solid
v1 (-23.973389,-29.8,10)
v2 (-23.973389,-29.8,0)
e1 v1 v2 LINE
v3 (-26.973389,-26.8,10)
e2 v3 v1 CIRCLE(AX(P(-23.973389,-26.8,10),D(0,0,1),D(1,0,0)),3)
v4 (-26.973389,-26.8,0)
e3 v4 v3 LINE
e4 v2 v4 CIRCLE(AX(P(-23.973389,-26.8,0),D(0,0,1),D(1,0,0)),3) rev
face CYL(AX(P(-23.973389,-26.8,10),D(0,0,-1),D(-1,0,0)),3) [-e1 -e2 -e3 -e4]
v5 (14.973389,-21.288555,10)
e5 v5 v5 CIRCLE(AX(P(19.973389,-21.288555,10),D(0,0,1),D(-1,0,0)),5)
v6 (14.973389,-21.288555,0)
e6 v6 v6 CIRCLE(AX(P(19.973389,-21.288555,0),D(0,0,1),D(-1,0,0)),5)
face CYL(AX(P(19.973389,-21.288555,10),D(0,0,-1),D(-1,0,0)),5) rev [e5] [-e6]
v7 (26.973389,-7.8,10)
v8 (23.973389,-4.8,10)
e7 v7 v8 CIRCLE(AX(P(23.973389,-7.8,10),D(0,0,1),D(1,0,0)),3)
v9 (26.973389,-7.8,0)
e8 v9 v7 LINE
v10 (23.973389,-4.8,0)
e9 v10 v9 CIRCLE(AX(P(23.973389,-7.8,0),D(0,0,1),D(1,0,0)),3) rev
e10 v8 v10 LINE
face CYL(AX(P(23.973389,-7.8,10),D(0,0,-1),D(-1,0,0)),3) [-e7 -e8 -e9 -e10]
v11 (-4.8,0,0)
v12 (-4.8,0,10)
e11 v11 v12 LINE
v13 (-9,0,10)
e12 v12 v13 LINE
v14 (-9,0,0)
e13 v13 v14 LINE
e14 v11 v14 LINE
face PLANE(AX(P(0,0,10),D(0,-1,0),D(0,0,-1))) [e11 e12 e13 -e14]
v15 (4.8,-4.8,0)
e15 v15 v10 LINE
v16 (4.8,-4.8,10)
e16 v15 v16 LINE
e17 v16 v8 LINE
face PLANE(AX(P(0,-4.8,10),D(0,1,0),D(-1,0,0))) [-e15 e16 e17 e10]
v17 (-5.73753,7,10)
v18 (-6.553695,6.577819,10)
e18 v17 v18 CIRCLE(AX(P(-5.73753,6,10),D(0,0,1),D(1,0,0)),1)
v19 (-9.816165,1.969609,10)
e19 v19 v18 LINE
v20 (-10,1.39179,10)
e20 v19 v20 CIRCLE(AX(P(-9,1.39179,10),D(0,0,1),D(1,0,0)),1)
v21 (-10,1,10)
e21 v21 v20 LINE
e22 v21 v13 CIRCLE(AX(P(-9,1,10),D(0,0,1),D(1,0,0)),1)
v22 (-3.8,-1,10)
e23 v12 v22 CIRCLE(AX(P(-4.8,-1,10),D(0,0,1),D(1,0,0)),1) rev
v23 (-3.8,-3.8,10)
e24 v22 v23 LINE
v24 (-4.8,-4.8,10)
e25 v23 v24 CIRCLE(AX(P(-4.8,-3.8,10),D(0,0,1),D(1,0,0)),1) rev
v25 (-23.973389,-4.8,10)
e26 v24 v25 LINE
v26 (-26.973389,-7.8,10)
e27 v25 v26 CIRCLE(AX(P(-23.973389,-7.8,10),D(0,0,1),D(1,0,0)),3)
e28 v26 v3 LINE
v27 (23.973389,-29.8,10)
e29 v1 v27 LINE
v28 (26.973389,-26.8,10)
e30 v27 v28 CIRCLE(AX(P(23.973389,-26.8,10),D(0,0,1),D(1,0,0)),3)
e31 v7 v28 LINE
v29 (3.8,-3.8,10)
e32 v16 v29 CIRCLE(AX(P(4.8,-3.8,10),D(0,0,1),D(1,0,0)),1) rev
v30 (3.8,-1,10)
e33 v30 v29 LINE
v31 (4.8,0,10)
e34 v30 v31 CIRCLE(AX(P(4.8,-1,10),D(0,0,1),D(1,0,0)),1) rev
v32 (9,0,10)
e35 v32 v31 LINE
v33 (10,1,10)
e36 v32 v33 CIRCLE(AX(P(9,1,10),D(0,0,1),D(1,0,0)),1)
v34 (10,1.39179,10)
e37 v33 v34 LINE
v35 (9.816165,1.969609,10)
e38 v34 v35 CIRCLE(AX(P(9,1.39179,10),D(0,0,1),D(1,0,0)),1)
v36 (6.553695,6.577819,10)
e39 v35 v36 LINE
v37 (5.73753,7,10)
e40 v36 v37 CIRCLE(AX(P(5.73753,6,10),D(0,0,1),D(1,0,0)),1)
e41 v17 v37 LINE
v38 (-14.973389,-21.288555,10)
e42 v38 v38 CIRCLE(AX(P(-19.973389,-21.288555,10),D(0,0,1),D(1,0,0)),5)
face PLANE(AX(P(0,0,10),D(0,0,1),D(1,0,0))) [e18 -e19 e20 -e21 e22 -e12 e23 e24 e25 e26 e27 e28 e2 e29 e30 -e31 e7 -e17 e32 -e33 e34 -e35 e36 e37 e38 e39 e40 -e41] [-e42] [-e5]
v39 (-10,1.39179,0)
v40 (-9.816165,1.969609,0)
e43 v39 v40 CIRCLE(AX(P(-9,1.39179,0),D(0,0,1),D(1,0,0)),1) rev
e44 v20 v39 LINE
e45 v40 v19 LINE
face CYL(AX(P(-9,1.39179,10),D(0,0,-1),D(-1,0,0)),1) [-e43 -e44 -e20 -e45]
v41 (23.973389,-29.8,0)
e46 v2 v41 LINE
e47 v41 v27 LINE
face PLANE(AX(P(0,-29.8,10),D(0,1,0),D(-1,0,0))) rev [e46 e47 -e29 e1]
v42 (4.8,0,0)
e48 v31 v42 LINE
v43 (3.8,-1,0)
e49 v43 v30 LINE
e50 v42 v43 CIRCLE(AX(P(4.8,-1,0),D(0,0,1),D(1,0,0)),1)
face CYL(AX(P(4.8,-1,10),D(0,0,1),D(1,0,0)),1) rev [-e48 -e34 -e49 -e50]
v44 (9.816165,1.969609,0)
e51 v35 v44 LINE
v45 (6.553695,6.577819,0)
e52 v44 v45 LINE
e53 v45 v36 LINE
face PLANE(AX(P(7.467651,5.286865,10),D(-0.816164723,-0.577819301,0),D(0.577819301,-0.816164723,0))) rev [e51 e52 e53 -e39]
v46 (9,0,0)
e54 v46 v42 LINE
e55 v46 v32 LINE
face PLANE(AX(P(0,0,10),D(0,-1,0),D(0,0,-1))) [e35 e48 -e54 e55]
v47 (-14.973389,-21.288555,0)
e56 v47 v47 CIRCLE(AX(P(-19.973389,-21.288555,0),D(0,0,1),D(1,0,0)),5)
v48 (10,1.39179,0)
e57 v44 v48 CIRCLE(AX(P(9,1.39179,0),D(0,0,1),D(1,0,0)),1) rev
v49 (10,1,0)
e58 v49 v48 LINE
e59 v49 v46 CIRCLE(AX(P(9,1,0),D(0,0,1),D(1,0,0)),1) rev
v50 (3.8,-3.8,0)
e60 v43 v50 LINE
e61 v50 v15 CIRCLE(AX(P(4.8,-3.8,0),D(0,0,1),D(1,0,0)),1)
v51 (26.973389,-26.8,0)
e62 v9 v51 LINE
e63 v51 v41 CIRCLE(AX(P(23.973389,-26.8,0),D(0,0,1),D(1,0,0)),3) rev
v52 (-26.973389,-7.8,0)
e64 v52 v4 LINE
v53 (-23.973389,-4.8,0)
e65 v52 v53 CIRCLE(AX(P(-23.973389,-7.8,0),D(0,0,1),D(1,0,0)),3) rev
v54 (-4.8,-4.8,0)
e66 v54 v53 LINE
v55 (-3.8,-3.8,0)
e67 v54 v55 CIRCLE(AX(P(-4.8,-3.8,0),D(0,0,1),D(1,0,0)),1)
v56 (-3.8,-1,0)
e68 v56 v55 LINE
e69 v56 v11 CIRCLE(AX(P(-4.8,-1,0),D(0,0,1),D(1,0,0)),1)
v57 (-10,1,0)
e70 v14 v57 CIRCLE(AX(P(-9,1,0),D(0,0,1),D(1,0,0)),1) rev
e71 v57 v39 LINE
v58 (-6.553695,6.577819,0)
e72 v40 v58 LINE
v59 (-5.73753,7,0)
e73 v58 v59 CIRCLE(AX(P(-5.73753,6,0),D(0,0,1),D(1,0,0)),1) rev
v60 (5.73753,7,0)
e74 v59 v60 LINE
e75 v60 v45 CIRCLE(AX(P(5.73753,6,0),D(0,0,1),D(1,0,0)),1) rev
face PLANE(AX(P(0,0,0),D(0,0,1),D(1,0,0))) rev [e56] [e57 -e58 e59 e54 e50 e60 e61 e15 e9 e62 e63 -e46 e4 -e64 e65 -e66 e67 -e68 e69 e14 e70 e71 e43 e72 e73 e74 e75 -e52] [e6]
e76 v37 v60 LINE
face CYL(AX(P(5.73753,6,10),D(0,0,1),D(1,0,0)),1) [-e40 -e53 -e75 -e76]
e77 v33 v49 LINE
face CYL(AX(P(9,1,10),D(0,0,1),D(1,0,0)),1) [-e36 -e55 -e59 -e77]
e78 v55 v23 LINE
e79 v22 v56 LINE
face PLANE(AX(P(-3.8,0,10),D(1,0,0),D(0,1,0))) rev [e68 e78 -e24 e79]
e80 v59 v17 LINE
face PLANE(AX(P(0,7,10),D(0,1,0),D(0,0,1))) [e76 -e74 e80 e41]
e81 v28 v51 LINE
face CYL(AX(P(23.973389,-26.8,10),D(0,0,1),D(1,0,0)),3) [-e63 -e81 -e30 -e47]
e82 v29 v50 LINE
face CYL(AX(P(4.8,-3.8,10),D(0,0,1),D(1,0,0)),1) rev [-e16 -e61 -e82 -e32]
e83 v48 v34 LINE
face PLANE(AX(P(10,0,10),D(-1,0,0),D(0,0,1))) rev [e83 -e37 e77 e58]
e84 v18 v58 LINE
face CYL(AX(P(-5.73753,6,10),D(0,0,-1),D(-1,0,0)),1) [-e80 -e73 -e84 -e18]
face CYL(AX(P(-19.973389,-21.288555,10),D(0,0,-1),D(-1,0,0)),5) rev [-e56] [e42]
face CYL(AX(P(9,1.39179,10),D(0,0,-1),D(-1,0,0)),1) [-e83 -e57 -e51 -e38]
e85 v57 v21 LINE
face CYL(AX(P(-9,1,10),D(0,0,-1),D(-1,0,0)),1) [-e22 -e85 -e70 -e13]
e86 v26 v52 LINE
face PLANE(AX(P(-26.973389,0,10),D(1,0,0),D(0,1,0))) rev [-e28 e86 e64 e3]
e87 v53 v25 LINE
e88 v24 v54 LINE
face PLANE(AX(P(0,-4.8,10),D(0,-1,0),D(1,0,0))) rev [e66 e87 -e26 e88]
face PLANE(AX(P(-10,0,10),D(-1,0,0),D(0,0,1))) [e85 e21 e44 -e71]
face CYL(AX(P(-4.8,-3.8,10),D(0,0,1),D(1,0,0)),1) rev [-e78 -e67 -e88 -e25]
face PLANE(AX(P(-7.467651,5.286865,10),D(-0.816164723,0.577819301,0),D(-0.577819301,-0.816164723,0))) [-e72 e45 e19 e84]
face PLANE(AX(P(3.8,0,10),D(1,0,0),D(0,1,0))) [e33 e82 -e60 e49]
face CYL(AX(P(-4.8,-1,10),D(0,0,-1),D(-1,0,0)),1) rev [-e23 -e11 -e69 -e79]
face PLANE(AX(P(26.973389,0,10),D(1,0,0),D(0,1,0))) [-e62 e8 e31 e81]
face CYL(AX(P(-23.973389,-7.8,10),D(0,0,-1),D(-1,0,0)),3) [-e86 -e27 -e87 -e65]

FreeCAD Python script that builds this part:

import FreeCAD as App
import Part
import Sketcher


def edges_at(feature, points):
    """Names of the edges that pass closest to the given points."""
    edges = feature.Shape.Edges
    near = lambda p: min(range(len(edges)), key=lambda i: edges[i].distToShape(Part.Vertex(*p))[0])
    return sorted({f"Edge{near(p) + 1}" for p in points})

doc = App.newDocument("Part")
body = doc.addObject("PartDesign::Body", "Body")

sketch1 = doc.addObject("Sketcher::SketchObject", "Sketch")
body.addObject(sketch1)
sketch1.AttachmentSupport = (doc.XY_Plane, [""])
sketch1.MapMode = "FlatFace"
sketch1.addGeometry([
    Part.LineSegment(App.Vector(-10, 0, 0), App.Vector(10, 0, 0)),
    Part.LineSegment(App.Vector(10, 0, 0), App.Vector(10, 1.7, 0)),
    Part.LineSegment(App.Vector(10, 1.7, 0), App.Vector(6.3, 7, 0)),
    Part.LineSegment(App.Vector(6.3, 7, 0), App.Vector(-6.3, 7, 0)),
    Part.LineSegment(App.Vector(-6.3, 7, 0), App.Vector(-10, 1.7, 0)),
    Part.LineSegment(App.Vector(-10, 1.7, 0), App.Vector(-10, 0, 0)),
], False)
sketch1.addConstraint([
    Sketcher.Constraint("Coincident", 0, 2, 1, 1),
    Sketcher.Constraint("Coincident", 1, 2, 2, 1),
    Sketcher.Constraint("Coincident", 2, 2, 3, 1),
    Sketcher.Constraint("Coincident", 3, 2, 4, 1),
    Sketcher.Constraint("Coincident", 4, 2, 5, 1),
    Sketcher.Constraint("Coincident", 5, 2, 0, 1),
    Sketcher.Constraint("Horizontal", 0),
    Sketcher.Constraint("Vertical", 1),
    Sketcher.Constraint("Horizontal", 3),
    Sketcher.Constraint("Vertical", 5),
    Sketcher.Constraint("Symmetric", 0, 2, 5, 2, -1, 1),
    Sketcher.Constraint("Horizontal", 1, 2, 4, 2),
    Sketcher.Constraint("Equal", 2, 4),
    Sketcher.Constraint("DistanceX", 0, 1, 0, 2, 20.0),
    Sketcher.Constraint("DistanceY", -1, 1, 2, 2, 7.0),
    Sketcher.Constraint("DistanceX", 3, 2, 3, 1, 12.509609),
    Sketcher.Constraint("DistanceY", 1, 1, 1, 2, 1.709944),
])
pad1 = doc.addObject("PartDesign::Pad", "Pad")
body.addObject(pad1)
pad1.Profile = sketch1
pad1.Length = 10

sketch2 = doc.addObject("Sketcher::SketchObject", "Sketch001")
body.addObject(sketch2)
sketch2.AttachmentSupport = (doc.XY_Plane, [""])
sketch2.MapMode = "FlatFace"
sketch2.addGeometry([
    Part.LineSegment(App.Vector(-3.8, 0, 0), App.Vector(-3.8, -4.8, 0)),
    Part.LineSegment(App.Vector(-3.8, -4.8, 0), App.Vector(-27, -4.8, 0)),
    Part.LineSegment(App.Vector(-27, -4.8, 0), App.Vector(-27, -29.8, 0)),
    Part.LineSegment(App.Vector(-27, -29.8, 0), App.Vector(27, -29.8, 0)),
    Part.LineSegment(App.Vector(27, -29.8, 0), App.Vector(27, -4.8, 0)),
    Part.LineSegment(App.Vector(27, -4.8, 0), App.Vector(3.8, -4.8, 0)),
    Part.LineSegment(App.Vector(3.8, -4.8, 0), App.Vector(3.8, 0, 0)),
    Part.LineSegment(App.Vector(3.8, 0, 0), App.Vector(-3.8, 0, 0)),
], False)
sketch2.addConstraint([
    Sketcher.Constraint("Coincident", 0, 2, 1, 1),
    Sketcher.Constraint("Coincident", 1, 2, 2, 1),
    Sketcher.Constraint("Coincident", 2, 2, 3, 1),
    Sketcher.Constraint("Coincident", 3, 2, 4, 1),
    Sketcher.Constraint("Coincident", 4, 2, 5, 1),
    Sketcher.Constraint("Coincident", 5, 2, 6, 1),
    Sketcher.Constraint("Coincident", 6, 2, 7, 1),
    Sketcher.Constraint("Coincident", 7, 2, 0, 1),
    Sketcher.Constraint("Vertical", 0),
    Sketcher.Constraint("Horizontal", 1),
    Sketcher.Constraint("Vertical", 2),
    Sketcher.Constraint("Horizontal", 3),
    Sketcher.Constraint("Vertical", 4),
    Sketcher.Constraint("Horizontal", 5),
    Sketcher.Constraint("Vertical", 6),
    Sketcher.Constraint("Horizontal", 7),
    Sketcher.Constraint("Symmetric", 6, 2, 7, 2, -1, 1),
    Sketcher.Constraint("Symmetric", 1, 2, 4, 2, -2),
    Sketcher.Constraint("DistanceY", 2, 2, 2, 1, 25.0),
    Sketcher.Constraint("DistanceX", 7, 2, 7, 1, 7.6),
    Sketcher.Constraint("DistanceY", 0, 2, 0, 1, 4.8),
    Sketcher.Constraint("DistanceX", 1, 2, 1, 1, 23.173389),
])
pad2 = doc.addObject("PartDesign::Pad", "Pad001")
body.addObject(pad2)
pad2.Profile = sketch2
pad2.Length = 10

sketch3 = doc.addObject("Sketcher::SketchObject", "Sketch002")
body.addObject(sketch3)
sketch3.AttachmentSupport = (doc.XY_Plane, [""])
sketch3.MapMode = "FlatFace"
sketch3.addGeometry([
    Part.Circle(App.Vector(-20, -21, 0), App.Vector(0, 0, 1), 5),
    Part.Circle(App.Vector(20, -21, 0), App.Vector(0, 0, 1), 5),
], False)
sketch3.addConstraint([
    Sketcher.Constraint("Equal", 0, 1),
    Sketcher.Constraint("Symmetric", 0, 3, 1, 3, -2),
    Sketcher.Constraint("Diameter", 0, 10.0),
    Sketcher.Constraint("DistanceX", 0, 3, -1, 1, 19.973389),
    Sketcher.Constraint("DistanceY", 0, 3, -1, 1, 21.288555),
])
pocket1 = doc.addObject("PartDesign::Pocket", "Pocket")
body.addObject(pocket1)
pocket1.Profile = sketch3
pocket1.Type = "ThroughAll"
pocket1.Reversed = True
doc.recompute()

fillet = doc.addObject("PartDesign::Fillet", "Fillet")
body.addObject(fillet)
fillet.Base = (pocket1, edges_at(pocket1, [
    (-10, 0, 5),
    (-10, 1.71, 5),
    (-6.255, 7, 5),
    (6.255, 7, 5),
    (10, 1.71, 5),
    (10, 0, 5),
]))
fillet.Radius = 1
doc.recompute()

fillet2 = doc.addObject("PartDesign::Fillet", "Fillet001")
body.addObject(fillet2)
fillet2.Base = (fillet, edges_at(fillet, [
    (3.8, -4.8, 5),
    (3.8, 0, 5),
    (-3.8, 0, 5),
    (-3.8, -4.8, 5),
]))
fillet2.Radius = 1
doc.recompute()

fillet3 = doc.addObject("PartDesign::Fillet", "Fillet002")
body.addObject(fillet3)
fillet3.Base = (fillet2, edges_at(fillet2, [
    (-26.973, -29.8, 5),
    (26.973, -29.8, 5),
    (26.973, -4.8, 5),
    (-26.973, -4.8, 5),
]))
fillet3.Radius = 3

doc.recompute()
